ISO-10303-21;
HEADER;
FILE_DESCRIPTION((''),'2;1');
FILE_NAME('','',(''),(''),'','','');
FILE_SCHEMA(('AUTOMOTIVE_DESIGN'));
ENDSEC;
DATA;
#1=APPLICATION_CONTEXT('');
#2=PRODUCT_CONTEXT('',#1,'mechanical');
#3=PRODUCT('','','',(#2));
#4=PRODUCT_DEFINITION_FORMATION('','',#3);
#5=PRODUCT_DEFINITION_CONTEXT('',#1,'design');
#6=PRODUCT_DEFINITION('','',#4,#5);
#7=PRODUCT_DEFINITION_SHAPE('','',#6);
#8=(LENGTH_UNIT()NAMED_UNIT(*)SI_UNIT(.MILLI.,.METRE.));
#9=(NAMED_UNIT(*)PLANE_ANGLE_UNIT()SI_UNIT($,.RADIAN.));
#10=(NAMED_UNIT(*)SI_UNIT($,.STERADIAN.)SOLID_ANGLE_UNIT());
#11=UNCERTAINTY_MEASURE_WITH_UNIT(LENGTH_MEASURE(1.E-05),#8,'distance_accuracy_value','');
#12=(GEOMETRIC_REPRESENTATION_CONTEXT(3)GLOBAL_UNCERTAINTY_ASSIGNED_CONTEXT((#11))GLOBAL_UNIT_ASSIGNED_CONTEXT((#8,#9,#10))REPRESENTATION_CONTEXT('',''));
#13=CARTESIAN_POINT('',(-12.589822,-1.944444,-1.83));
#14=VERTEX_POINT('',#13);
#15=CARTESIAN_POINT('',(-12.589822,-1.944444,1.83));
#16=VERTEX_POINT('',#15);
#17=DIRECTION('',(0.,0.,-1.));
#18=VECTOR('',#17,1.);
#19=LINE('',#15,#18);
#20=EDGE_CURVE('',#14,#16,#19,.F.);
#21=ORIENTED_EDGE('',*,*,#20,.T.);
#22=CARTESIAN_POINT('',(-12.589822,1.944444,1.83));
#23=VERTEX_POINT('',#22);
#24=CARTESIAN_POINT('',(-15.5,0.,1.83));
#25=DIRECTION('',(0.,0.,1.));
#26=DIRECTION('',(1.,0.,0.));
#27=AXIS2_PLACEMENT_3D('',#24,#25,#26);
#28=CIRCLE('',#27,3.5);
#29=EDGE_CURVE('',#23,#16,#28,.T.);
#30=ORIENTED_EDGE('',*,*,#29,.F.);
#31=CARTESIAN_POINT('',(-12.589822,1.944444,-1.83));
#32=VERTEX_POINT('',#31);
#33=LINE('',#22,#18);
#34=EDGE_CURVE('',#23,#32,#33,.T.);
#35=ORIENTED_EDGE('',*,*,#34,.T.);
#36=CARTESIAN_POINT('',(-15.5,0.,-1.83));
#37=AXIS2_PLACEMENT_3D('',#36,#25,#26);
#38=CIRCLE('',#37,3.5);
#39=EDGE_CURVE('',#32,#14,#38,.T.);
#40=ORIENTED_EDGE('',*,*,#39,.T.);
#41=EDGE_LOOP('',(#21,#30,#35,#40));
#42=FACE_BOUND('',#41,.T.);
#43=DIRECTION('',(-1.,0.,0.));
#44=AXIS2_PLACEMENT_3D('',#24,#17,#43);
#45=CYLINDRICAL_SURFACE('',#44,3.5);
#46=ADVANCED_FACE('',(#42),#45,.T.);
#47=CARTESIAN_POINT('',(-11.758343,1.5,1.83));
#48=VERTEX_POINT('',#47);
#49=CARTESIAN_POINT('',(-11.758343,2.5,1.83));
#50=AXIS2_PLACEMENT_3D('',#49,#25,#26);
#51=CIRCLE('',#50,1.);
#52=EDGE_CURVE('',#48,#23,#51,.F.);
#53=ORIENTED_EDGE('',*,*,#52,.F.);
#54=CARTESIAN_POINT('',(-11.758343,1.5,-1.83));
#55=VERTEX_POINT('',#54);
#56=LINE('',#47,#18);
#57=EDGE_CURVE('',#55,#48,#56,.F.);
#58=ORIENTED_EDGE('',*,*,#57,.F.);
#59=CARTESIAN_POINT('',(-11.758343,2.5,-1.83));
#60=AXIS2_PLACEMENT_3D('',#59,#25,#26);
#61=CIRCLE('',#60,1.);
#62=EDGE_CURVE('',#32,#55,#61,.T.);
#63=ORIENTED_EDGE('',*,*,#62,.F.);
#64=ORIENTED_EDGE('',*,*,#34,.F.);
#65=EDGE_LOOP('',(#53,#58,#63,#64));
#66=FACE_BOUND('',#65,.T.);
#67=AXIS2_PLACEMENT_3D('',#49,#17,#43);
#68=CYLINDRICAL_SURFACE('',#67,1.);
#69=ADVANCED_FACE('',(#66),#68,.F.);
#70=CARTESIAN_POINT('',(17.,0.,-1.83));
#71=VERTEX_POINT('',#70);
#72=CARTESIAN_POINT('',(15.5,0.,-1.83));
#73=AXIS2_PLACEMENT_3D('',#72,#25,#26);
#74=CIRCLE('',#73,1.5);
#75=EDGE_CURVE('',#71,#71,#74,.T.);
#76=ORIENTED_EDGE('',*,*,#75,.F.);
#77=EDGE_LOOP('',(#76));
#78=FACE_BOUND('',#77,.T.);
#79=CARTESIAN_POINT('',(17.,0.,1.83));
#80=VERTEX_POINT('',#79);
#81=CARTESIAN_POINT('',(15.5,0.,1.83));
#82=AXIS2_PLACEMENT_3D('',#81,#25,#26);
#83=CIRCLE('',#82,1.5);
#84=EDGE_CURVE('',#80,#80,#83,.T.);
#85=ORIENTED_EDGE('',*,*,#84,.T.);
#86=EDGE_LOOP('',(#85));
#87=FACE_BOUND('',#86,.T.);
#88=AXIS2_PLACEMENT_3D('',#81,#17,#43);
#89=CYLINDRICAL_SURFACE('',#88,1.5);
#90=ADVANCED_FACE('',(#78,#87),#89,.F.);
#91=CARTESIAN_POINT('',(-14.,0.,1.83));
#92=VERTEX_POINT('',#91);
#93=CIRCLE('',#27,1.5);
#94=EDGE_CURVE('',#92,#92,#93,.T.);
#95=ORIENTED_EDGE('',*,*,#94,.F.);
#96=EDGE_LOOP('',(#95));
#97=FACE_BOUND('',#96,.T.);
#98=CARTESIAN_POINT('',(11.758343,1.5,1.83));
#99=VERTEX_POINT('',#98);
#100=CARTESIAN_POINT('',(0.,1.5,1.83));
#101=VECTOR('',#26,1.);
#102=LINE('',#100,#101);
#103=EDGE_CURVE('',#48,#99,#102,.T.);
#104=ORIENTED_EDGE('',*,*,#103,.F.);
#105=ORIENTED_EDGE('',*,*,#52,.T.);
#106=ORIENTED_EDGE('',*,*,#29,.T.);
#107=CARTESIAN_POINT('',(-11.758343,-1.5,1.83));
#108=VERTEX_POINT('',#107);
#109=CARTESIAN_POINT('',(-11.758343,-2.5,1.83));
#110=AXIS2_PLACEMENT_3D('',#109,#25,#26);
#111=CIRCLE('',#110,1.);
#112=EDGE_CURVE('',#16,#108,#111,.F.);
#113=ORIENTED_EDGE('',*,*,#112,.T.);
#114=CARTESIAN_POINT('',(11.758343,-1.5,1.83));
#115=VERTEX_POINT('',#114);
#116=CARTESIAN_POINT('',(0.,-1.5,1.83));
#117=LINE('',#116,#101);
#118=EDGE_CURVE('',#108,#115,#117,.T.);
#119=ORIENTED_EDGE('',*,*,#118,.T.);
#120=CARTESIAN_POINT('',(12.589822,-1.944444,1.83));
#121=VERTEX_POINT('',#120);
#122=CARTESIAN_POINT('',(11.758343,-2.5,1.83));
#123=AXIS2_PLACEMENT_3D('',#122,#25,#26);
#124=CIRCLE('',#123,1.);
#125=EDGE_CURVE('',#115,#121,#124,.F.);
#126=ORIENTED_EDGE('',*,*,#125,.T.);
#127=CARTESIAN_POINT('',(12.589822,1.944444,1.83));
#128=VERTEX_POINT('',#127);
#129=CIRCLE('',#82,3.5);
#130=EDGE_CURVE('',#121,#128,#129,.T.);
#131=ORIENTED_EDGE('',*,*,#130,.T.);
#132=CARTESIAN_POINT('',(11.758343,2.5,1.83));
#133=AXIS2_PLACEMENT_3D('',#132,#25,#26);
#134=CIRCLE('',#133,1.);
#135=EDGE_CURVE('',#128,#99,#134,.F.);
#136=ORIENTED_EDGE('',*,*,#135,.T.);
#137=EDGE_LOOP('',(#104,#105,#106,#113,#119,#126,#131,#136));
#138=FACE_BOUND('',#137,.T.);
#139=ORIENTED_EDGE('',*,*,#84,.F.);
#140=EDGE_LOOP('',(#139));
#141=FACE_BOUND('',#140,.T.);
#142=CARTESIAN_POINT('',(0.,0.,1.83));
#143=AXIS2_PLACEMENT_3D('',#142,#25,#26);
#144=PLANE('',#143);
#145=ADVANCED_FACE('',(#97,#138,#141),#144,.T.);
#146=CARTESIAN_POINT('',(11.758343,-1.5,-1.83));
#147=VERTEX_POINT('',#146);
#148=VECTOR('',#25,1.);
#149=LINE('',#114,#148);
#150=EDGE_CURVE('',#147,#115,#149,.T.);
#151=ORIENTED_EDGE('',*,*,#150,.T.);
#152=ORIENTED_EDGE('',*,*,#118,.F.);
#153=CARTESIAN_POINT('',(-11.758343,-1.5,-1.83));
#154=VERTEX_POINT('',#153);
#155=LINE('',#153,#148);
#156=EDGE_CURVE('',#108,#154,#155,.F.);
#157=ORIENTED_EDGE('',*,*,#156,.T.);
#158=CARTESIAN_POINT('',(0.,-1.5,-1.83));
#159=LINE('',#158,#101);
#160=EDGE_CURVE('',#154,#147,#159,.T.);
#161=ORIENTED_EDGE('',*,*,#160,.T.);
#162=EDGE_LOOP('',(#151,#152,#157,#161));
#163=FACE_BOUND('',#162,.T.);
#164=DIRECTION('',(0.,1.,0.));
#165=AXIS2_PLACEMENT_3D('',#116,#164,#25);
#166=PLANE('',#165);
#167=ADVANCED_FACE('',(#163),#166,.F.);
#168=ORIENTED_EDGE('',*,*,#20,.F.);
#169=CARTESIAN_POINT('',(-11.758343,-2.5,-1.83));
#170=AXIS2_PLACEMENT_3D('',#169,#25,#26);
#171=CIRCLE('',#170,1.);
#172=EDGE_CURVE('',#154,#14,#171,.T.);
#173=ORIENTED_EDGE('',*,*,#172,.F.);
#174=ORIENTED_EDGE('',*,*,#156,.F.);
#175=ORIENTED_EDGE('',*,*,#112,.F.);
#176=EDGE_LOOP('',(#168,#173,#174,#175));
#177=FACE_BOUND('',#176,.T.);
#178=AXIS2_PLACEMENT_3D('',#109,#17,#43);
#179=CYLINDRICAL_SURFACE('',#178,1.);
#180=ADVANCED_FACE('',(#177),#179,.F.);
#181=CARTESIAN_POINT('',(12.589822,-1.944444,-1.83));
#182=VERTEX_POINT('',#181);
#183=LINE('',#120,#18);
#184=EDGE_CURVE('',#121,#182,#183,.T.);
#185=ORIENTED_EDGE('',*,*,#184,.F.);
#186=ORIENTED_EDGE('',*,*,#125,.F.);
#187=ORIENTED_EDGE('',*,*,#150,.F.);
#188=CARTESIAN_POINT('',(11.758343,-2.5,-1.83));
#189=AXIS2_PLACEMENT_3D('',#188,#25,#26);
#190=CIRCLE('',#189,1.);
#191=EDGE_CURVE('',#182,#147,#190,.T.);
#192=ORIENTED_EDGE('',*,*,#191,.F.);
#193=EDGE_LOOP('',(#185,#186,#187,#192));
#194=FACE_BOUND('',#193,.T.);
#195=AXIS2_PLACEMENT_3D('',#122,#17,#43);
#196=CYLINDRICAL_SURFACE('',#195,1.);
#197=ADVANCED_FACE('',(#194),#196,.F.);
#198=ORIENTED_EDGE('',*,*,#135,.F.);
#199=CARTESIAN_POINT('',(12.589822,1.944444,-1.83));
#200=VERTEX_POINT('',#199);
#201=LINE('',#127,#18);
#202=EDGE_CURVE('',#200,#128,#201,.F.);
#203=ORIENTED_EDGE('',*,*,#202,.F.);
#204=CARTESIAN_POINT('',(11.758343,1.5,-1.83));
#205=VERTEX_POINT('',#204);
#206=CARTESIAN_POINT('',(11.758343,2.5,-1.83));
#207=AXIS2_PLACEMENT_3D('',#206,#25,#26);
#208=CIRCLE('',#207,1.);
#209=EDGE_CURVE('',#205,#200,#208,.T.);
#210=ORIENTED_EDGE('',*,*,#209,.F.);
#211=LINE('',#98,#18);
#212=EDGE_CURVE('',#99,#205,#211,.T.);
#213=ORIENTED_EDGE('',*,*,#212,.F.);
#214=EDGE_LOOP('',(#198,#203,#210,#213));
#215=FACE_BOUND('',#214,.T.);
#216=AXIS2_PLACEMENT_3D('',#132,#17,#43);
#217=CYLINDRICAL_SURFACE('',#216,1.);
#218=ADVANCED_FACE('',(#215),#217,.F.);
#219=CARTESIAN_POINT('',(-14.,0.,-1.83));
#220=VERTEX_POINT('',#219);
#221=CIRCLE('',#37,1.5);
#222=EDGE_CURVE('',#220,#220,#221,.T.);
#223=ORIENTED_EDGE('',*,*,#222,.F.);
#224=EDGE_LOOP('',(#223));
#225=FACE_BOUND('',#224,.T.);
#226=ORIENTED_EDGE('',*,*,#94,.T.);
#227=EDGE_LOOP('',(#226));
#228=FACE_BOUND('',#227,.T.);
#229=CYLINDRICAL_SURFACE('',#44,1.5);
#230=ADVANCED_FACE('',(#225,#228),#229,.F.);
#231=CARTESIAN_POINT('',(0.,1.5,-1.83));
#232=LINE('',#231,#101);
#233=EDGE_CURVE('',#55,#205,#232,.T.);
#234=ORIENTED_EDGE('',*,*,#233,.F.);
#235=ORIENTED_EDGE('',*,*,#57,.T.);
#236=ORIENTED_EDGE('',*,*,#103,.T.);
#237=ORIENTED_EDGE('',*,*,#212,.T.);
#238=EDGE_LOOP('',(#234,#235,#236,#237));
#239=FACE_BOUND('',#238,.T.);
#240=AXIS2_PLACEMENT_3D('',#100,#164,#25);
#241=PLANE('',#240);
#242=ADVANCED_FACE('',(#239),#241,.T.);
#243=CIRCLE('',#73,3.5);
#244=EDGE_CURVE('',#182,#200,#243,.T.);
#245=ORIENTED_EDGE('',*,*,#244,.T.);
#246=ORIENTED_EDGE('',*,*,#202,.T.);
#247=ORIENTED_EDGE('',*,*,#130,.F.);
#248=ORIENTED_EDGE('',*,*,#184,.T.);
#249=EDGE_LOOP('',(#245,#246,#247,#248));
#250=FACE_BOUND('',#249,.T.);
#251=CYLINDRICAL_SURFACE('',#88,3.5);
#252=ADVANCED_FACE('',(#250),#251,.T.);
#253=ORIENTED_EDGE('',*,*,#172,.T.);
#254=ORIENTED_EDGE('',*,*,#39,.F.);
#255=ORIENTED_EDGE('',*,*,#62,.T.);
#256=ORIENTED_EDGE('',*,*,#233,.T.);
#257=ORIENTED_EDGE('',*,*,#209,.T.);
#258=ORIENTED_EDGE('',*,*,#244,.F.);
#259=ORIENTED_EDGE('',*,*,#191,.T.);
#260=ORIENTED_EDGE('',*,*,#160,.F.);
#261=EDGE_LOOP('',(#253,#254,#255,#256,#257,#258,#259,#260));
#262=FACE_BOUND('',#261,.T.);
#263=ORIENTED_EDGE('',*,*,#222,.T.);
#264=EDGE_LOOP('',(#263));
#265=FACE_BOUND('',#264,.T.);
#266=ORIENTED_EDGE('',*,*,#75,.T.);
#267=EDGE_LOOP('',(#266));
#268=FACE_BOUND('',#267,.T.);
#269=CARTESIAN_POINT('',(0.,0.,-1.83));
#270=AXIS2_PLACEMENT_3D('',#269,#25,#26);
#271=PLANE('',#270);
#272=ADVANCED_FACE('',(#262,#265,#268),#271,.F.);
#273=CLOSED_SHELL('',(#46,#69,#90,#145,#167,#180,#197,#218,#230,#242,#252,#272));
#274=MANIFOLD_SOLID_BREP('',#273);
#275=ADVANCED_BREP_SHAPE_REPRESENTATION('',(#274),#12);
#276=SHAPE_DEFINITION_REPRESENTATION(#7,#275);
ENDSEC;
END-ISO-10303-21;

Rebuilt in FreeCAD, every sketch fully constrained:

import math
import FreeCAD as App
import Part
import Sketcher

V = App.Vector
Q = App.Units.Quantity


def edges_at(feature, points):
    """Names of the edges that pass closest to the given points."""
    edges = feature.Shape.Edges
    near = lambda p: min(range(len(edges)), key=lambda i: edges[i].distToShape(Part.Vertex(*p))[0])
    return sorted({f"Edge{near(p) + 1}" for p in points})

doc = App.newDocument("Part")
params = doc.addObject("Spreadsheet::Sheet", "Params")
for row, (alias, value) in enumerate([
    ("sketch1_diameter", "3 mm"),
    ("sketch1_radius", "3.5 mm"),
    ("pad1_length", "3.66 mm"),
    ("fillet_radius", "1 mm"),
], start=1):
    params.set(f"A{row}", alias)
    params.set(f"B{row}", "=" + value)
    params.setAlias(f"B{row}", alias)

body = doc.addObject("PartDesign::Body", "Body")

# Sketch on XY plane
sketch1 = doc.addObject("Sketcher::SketchObject", "Sketch")
body.addObject(sketch1)
sketch1.AttachmentSupport = (doc.XY_Plane, [""])
sketch1.MapMode = "FlatFace"
sketch1.addGeometry(Part.ArcOfCircle(Part.Circle(V(-15.5, 0, 0), V(0, 0, 1), 3.5), math.radians(25.376932), math.radians(334.623068)), False)
sketch1.addGeometry(Part.LineSegment(V(-12.337722, -1.5, 0), V(12.337722, -1.5, 0)), False)
sketch1.addGeometry(Part.ArcOfCircle(Part.Circle(V(15.5, 0, 0), V(0, 0, 1), 3.5), math.radians(-154.623069), math.radians(0.000001)), False)
sketch1.addGeometry(Part.ArcOfCircle(Part.Circle(V(15.5, 0, 0), V(0, 0, 1), 3.5), math.radians(-0.000001), math.radians(154.623069)), False)
sketch1.addGeometry(Part.LineSegment(V(12.337722, 1.5, 0), V(-12.337722, 1.5, 0)), False)
sketch1.addGeometry(Part.Circle(V(-15.5, 0, 0), V(0, 0, 1), 1.5), False)
sketch1.addGeometry(Part.Circle(V(15.5, 0, 0), V(0, 0, 1), 1.5), False)
sketch1.addConstraint(Sketcher.Constraint("Coincident", 0, 2, 1, 1))
sketch1.addConstraint(Sketcher.Constraint("Coincident", 1, 2, 2, 1))
sketch1.addConstraint(Sketcher.Constraint("Tangent", 2, 2, 3, 1))
sketch1.addConstraint(Sketcher.Constraint("Coincident", 3, 2, 4, 1))
sketch1.addConstraint(Sketcher.Constraint("Coincident", 4, 2, 0, 1))
sketch1.addConstraint(Sketcher.Constraint("Horizontal", 1))
sketch1.addConstraint(Sketcher.Constraint("Horizontal", 4))
sketch1.addConstraint(Sketcher.Constraint("Coincident", 5, 3, 0, 3))
sketch1.addConstraint(Sketcher.Constraint("Coincident", 6, 3, 2, 3))
sketch1.addConstraint(Sketcher.Constraint("Equal", 0, 2))
sketch1.addConstraint(Sketcher.Constraint("Equal", 2, 3))
sketch1.addConstraint(Sketcher.Constraint("Equal", 5, 6))
sketch1.addConstraint(Sketcher.Constraint("Symmetric", 0, 3, 2, 3, -1, 1))
sketch1.addConstraint(Sketcher.Constraint("Symmetric", 1, 2, 3, 2, -1))
sketch1.addConstraint(Sketcher.Constraint("PointOnObject", 2, 2, -1))
sketch1.addConstraint(Sketcher.Constraint("Diameter", 5, Q("3 mm")))
sketch1.addConstraint(Sketcher.Constraint("Radius", 0, Q("3.5 mm")))
sketch1.addConstraint(Sketcher.Constraint("DistanceX", -1, 1, 2, 2, Q("19 mm")))
sketch1.addConstraint(Sketcher.Constraint("DistanceY", 1, 2, 3, 2, Q("3 mm")))
sketch1.setExpression("Constraints[15]", "Params.sketch1_diameter")
sketch1.setExpression("Constraints[16]", "Params.sketch1_radius")
pad1 = doc.addObject("PartDesign::Pad", "Pad")
body.addObject(pad1)
pad1.Profile = sketch1
pad1.setExpression("Length", "Params.pad1_length")
pad1.Midplane = True
doc.recompute()

fillet = doc.addObject("PartDesign::Fillet", "Fillet")
body.addObject(fillet)
fillet.Base = (pad1, edges_at(pad1, [
    (-12.338, 1.5, 0),
    (12.338, 1.5, 0),
    (12.338, -1.5, 0),
    (-12.338, -1.5, 0),
]))
fillet.setExpression("Radius", "Params.fillet_radius")

doc.recompute()
